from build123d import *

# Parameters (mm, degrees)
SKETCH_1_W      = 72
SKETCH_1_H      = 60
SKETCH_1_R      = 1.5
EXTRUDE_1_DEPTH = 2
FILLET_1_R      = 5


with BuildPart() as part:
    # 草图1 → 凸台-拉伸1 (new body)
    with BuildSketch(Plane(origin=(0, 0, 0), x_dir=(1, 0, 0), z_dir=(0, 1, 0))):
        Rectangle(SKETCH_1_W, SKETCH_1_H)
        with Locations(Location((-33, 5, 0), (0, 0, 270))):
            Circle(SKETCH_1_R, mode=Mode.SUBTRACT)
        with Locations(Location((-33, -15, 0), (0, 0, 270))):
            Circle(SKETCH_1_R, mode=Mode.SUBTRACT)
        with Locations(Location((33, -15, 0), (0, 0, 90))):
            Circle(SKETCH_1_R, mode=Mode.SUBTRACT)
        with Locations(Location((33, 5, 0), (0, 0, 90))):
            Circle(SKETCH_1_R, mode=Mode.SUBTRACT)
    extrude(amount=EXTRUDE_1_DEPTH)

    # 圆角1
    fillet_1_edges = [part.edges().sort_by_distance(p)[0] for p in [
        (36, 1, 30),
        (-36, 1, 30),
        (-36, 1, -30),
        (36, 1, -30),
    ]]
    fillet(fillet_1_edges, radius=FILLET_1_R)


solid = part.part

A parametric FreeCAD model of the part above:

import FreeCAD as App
import Part
import Sketcher
from FreeCAD import Vector


def edges_at(feature, points):
    """Names of the edges that pass closest to the given points."""
    edges = feature.Shape.Edges
    near = lambda p: min(range(len(edges)), key=lambda i: edges[i].distToShape(Part.Vertex(*p))[0])
    return sorted({f"Edge{near(p) + 1}" for p in points})

doc = App.newDocument("Part")
params = doc.addObject("Spreadsheet::Sheet", "Params")
for row, (alias, value) in enumerate([
    ("sketch1_diameter", "3 mm"),
    ("sketch1_width", "72 mm"),
    ("sketch1_height", "60 mm"),
    ("pad1_length", "2 mm"),
    ("fillet_radius", "5 mm"),
], start=1):
    params.set(f"A{row}", alias)
    params.set(f"B{row}", "=" + value)
    params.setAlias(f"B{row}", alias)

body = doc.addObject("PartDesign::Body", "Body")

sketch1 = doc.addObject("Sketcher::SketchObject", "Sketch")
body.addObject(sketch1)
sketch1.AttachmentSupport = (doc.XZ_Plane, [""])
sketch1.MapMode = "FlatFace"
sketch1.addGeometry(Part.LineSegment(Vector(-36, -30, 0), Vector(-36, 30, 0)), False)
sketch1.addGeometry(Part.LineSegment(Vector(-36, 30, 0), Vector(36, 30, 0)), False)
sketch1.addGeometry(Part.LineSegment(Vector(36, 30, 0), Vector(36, -30, 0)), False)
sketch1.addGeometry(Part.LineSegment(Vector(36, -30, 0), Vector(-36, -30, 0)), False)
sketch1.addGeometry(Part.Circle(Vector(-33, 15, 0), Vector(0, 0, 1), 1.5), False)
sketch1.addGeometry(Part.Circle(Vector(33, 15, 0), Vector(0, 0, 1), 1.5), False)
sketch1.addGeometry(Part.Circle(Vector(-33, -5, 0), Vector(0, 0, 1), 1.5), False)
sketch1.addGeometry(Part.Circle(Vector(33, -5, 0), Vector(0, 0, 1), 1.5), False)
sketch1.addConstraint(Sketcher.Constraint("Coincident", 0, 2, 1, 1))
sketch1.addConstraint(Sketcher.Constraint("Coincident", 1, 2, 2, 1))
sketch1.addConstraint(Sketcher.Constraint("Coincident", 2, 2, 3, 1))
sketch1.addConstraint(Sketcher.Constraint("Coincident", 3, 2, 0, 1))
sketch1.addConstraint(Sketcher.Constraint("Vertical", 0))
sketch1.addConstraint(Sketcher.Constraint("Horizontal", 1))
sketch1.addConstraint(Sketcher.Constraint("Vertical", 2))
sketch1.addConstraint(Sketcher.Constraint("Horizontal", 3))
sketch1.addConstraint(Sketcher.Constraint("Equal", 4, 5))
sketch1.addConstraint(Sketcher.Constraint("Equal", 5, 6))
sketch1.addConstraint(Sketcher.Constraint("Equal", 6, 7))
sketch1.addConstraint(Sketcher.Constraint("Symmetric", 0, 2, 2, 2, -1, 1))
sketch1.addConstraint(Sketcher.Constraint("Symmetric", 4, 3, 5, 3, -2))
sketch1.addConstraint(Sketcher.Constraint("Symmetric", 6, 3, 7, 3, -2))
sketch1.addConstraint(Sketcher.Constraint("Vertical", 4, 3, 6, 3))
sketch1.addConstraint(Sketcher.Constraint("Diameter", 4, 3.0))
sketch1.addConstraint(Sketcher.Constraint("DistanceX", 1, 1, 1, 2, 72.0))
sketch1.addConstraint(Sketcher.Constraint("DistanceY", 0, 1, 0, 2, 60.0))
sketch1.addConstraint(Sketcher.Constraint("DistanceX", 4, 3, -1, 1, 33.0))
sketch1.addConstraint(Sketcher.Constraint("DistanceY", -1, 1, 4, 3, 15.0))
sketch1.addConstraint(Sketcher.Constraint("DistanceY", 6, 3, -1, 1, 5.0))
sketch1.setExpression("Constraints[15]", "Params.sketch1_diameter")
sketch1.setExpression("Constraints[16]", "Params.sketch1_width")
sketch1.setExpression("Constraints[17]", "Params.sketch1_height")
pad1 = doc.addObject("PartDesign::Pad", "Pad")
body.addObject(pad1)
pad1.Profile = sketch1
pad1.setExpression("Length", "Params.pad1_length")
pad1.Reversed = True
doc.recompute()

fillet = doc.addObject("PartDesign::Fillet", "Fillet")
body.addObject(fillet)
fillet.Base = (pad1, edges_at(pad1, [
    (36, 1, 30),
    (-36, 1, 30),
    (-36, 1, -30),
    (36, 1, -30),
]))
fillet.setExpression("Radius", "Params.fillet_radius")

doc.recompute()
